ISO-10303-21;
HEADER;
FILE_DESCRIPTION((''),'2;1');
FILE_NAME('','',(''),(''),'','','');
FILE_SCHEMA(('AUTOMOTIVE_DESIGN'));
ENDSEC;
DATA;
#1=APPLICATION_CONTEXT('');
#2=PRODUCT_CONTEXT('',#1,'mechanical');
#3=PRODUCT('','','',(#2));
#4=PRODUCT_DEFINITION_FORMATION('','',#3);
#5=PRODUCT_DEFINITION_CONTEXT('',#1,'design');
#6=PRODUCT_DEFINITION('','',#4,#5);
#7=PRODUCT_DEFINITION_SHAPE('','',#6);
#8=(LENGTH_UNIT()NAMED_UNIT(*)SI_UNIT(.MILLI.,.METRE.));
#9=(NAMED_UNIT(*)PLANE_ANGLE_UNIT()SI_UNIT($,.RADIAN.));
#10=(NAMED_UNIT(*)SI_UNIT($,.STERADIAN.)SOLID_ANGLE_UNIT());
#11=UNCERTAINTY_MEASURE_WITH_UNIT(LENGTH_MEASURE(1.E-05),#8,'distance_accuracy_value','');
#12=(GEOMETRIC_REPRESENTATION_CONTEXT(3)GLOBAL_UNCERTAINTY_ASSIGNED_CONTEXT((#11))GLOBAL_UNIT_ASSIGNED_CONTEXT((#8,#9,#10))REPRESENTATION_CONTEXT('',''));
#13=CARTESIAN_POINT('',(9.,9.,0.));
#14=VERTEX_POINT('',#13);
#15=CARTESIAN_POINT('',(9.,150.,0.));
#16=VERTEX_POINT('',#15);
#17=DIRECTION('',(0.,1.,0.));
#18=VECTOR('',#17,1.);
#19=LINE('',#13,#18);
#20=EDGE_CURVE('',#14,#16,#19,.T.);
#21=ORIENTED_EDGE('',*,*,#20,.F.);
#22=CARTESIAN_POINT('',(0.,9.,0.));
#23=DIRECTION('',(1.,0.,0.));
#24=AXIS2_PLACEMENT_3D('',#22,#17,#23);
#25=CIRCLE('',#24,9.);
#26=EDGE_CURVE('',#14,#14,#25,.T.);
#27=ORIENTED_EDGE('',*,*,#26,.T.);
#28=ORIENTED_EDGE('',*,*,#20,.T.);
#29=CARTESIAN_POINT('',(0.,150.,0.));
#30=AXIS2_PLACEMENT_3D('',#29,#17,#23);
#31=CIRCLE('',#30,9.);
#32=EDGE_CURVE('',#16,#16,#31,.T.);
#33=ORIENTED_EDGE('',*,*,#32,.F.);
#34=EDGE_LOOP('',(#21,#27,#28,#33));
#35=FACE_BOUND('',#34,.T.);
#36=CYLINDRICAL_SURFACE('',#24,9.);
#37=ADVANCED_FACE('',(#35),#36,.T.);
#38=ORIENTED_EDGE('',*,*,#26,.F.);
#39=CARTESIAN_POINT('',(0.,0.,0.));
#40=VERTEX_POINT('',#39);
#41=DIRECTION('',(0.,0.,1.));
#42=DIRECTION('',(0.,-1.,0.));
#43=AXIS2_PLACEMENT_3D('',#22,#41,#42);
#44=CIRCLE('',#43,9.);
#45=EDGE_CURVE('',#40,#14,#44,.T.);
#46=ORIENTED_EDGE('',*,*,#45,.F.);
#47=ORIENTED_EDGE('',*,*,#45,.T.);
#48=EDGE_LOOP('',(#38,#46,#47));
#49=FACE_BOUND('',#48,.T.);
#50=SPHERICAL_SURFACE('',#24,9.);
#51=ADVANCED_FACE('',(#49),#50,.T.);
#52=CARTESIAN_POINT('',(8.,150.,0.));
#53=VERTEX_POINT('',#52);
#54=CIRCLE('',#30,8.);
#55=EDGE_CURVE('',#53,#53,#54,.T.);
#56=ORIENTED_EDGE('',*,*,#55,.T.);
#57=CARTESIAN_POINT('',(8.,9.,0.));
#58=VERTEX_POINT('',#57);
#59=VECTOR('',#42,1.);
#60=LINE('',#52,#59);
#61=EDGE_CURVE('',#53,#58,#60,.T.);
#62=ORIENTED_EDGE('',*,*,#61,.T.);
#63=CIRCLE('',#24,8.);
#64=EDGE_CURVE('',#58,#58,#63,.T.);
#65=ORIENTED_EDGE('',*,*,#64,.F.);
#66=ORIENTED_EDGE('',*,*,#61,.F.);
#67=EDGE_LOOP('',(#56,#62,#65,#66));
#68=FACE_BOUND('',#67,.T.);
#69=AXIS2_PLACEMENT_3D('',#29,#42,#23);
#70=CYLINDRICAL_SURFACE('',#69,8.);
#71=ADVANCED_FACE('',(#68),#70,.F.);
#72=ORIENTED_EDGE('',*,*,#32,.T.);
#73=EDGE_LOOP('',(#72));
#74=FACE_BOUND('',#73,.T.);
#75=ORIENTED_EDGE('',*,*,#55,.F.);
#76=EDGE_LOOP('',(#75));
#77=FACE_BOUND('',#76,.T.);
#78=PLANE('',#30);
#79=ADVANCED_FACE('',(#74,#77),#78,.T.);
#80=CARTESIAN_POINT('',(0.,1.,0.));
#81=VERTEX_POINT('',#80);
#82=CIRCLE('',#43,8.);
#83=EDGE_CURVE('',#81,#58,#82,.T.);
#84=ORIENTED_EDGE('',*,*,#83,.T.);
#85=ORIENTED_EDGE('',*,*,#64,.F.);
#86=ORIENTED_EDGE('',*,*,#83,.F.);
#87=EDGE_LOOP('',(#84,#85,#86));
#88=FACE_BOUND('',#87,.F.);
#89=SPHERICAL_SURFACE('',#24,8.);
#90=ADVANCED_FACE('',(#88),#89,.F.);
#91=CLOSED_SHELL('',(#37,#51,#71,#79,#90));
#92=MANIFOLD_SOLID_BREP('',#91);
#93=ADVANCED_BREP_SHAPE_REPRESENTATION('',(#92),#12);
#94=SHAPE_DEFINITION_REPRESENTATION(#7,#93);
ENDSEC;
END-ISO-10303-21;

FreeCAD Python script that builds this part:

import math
import FreeCAD as App
import Part
import Sketcher

V = App.Vector
Q = App.Units.Quantity

doc = App.newDocument("Part")
body = doc.addObject("PartDesign::Body", "Body")

# Sketch on XY plane
sketch1 = body.newObject("Sketcher::SketchObject", "Sketch")
sketch1.AttachmentSupport = (doc.getObject("XY_Plane"), [""])
sketch1.MapMode = "FlatFace"
sketch1.addGeometry([
    Part.LineSegment(V(0, 1, 0), V(0, 0, 0)),  # 0
    Part.ArcOfCircle(Part.Circle(V(0, 9, 0), V(0, 0, 1), 9), math.radians(-90), math.radians(0)),  # 1
    Part.LineSegment(V(9, 9, 0), V(9, 150, 0)),  # 2
    Part.LineSegment(V(9, 150, 0), V(8, 150, 0)),  # 3
    Part.LineSegment(V(8, 150, 0), V(8, 9, 0)),  # 4
    Part.ArcOfCircle(Part.Circle(V(0, 9, 0), V(0, 0, 1), 8), math.radians(-90), math.radians(0)),  # 5
], False)
sketch1.addConstraint([
    Sketcher.Constraint("Coincident", 0, 2, 1, 1),
    Sketcher.Constraint("Tangent", 1, 2, 2, 1),
    Sketcher.Constraint("Coincident", 2, 2, 3, 1),
    Sketcher.Constraint("Coincident", 3, 2, 4, 1),
    Sketcher.Constraint("Tangent", 4, 2, 5, 2),
    Sketcher.Constraint("Coincident", 5, 1, 0, 1),
    Sketcher.Constraint("Vertical", 0),
    Sketcher.Constraint("Vertical", 2),
    Sketcher.Constraint("Horizontal", 3),
    Sketcher.Constraint("Vertical", 4),
    Sketcher.Constraint("Coincident", 0, 2, -1, 1),
    Sketcher.Constraint("Coincident", 5, 3, 1, 3),
    Sketcher.Constraint("PointOnObject", 1, 3, -2),
    Sketcher.Constraint("Radius", 1, Q("9 mm")),
    Sketcher.Constraint("DistanceX", 3, 2, 3, 1, Q("1 mm")),
    Sketcher.Constraint("DistanceY", -1, 1, 2, 2, Q("150 mm")),
])
revolution = body.newObject("PartDesign::Revolution", "Revolution")
revolution.Profile = sketch1
revolution.ReferenceAxis = (sketch1, ["V_Axis"])
revolution.Angle = 360

doc.recompute()
